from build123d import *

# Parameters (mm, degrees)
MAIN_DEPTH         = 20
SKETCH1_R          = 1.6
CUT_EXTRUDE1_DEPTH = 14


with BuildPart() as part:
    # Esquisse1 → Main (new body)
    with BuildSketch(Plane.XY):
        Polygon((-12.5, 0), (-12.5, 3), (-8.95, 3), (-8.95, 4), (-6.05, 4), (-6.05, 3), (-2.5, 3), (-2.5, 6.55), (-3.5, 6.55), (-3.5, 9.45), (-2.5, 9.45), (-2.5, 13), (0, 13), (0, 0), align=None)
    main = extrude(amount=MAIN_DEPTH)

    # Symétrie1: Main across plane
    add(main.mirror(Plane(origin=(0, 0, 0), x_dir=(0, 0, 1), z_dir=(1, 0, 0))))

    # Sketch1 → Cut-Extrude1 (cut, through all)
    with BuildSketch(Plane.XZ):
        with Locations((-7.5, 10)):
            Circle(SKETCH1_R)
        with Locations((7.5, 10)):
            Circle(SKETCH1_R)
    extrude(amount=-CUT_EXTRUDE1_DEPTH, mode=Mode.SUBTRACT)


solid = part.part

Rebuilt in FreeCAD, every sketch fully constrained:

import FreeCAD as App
import Part
import Sketcher
from FreeCAD import Vector


def add_polygon(sketch, points):
    """Adds a closed chain of lines whose ends are joined by coincident constraints."""
    first, n = sketch.GeometryCount, len(points)
    for a, b in zip(points, points[1:] + points[:1]):
        sketch.addGeometry(Part.LineSegment(App.Vector(*a, 0), App.Vector(*b, 0)), False)
    for i in range(n):
        sketch.addConstraint(Sketcher.Constraint("Coincident", first + i, 2, first + (i + 1) % n, 1))

doc = App.newDocument("Part")
body = doc.addObject("PartDesign::Body", "Body")

# Sketch on XY plane
sketch1 = body.newObject("Sketcher::SketchObject", "Sketch")
sketch1.AttachmentSupport = (doc.getObject("XY_Plane"), [""])
sketch1.MapMode = "FlatFace"
add_polygon(sketch1, [(-12.5, 3), (-12.5, 0), (0, 0), (0, 13), (-2.5, 13), (-2.5, 9.4), (-3.5, 9.4), (-3.5, 6.5), (-2.5, 6.5), (-2.5, 3), (-6, 3), (-6, 4), (-8.9, 4), (-8.9, 3)])  # lines 0-13
sketch1.addConstraint(Sketcher.Constraint("Vertical", 0))
sketch1.addConstraint(Sketcher.Constraint("Horizontal", 1))
sketch1.addConstraint(Sketcher.Constraint("Vertical", 2))
sketch1.addConstraint(Sketcher.Constraint("Horizontal", 3))
sketch1.addConstraint(Sketcher.Constraint("Vertical", 4))
sketch1.addConstraint(Sketcher.Constraint("Horizontal", 5))
sketch1.addConstraint(Sketcher.Constraint("Vertical", 6))
sketch1.addConstraint(Sketcher.Constraint("Horizontal", 7))
sketch1.addConstraint(Sketcher.Constraint("Vertical", 8))
sketch1.addConstraint(Sketcher.Constraint("Horizontal", 9))
sketch1.addConstraint(Sketcher.Constraint("Vertical", 10))
sketch1.addConstraint(Sketcher.Constraint("Horizontal", 11))
sketch1.addConstraint(Sketcher.Constraint("Vertical", 12))
sketch1.addConstraint(Sketcher.Constraint("Horizontal", 13))
sketch1.addConstraint(Sketcher.Constraint("Coincident", 1, 2, -1, 1))
sketch1.addConstraint(Sketcher.Constraint("Horizontal", 9, 2, 12, 2))
sketch1.addConstraint(Sketcher.Constraint("Vertical", 4, 2, 7, 2))
sketch1.addConstraint(Sketcher.Constraint("Equal", 9, 13))
sketch1.addConstraint(Sketcher.Constraint("Equal", 13, 4))
sketch1.addConstraint(Sketcher.Constraint("Equal", 11, 6))
sketch1.addConstraint(Sketcher.Constraint("Equal", 4, 8))
sketch1.addConstraint(Sketcher.Constraint("Equal", 7, 10))
sketch1.addConstraint(Sketcher.Constraint("DistanceX", 5, 2, 5, 1, 1.0))
sketch1.addConstraint(Sketcher.Constraint("DistanceY", 0, 2, 0, 1, 3.0))
sketch1.addConstraint(Sketcher.Constraint("DistanceY", 2, 1, 2, 2, 13.0))
sketch1.addConstraint(Sketcher.Constraint("DistanceX", 1, 1, 1, 2, 12.5))
sketch1.addConstraint(Sketcher.Constraint("DistanceX", 11, 2, 11, 1, 2.9))
pad1 = body.newObject("PartDesign::Pad", "Pad")
pad1.Profile = sketch1
pad1.Length = 20
doc.recompute()

mirrored = body.newObject("PartDesign::Mirrored", "Mirrored")
mirrored.Originals = [pad1]
mirrored.MirrorPlane = (doc.getObject("YZ_Plane"), [""])
body.Tip = mirrored

# Sketch on XZ plane
sketch2 = body.newObject("Sketcher::SketchObject", "Sketch001")
sketch2.AttachmentSupport = (doc.getObject("XZ_Plane"), [""])
sketch2.MapMode = "FlatFace"
sketch2.addGeometry(Part.Circle(Vector(-7.5, 10, 0), Vector(0, 0, 1), 1.6), False)
sketch2.addGeometry(Part.Circle(Vector(7.5, 10, 0), Vector(0, 0, 1), 1.6), False)
sketch2.addConstraint(Sketcher.Constraint("Equal", 0, 1))
sketch2.addConstraint(Sketcher.Constraint("Symmetric", 0, 3, 1, 3, -2))
sketch2.addConstraint(Sketcher.Constraint("Diameter", 0, 3.2))
sketch2.addConstraint(Sketcher.Constraint("DistanceY", -1, 1, 0, 3, 10.0))
sketch2.addConstraint(Sketcher.Constraint("DistanceX", 0, 3, 1, 3, 15.0))
pocket1 = body.newObject("PartDesign::Pocket", "Pocket")
pocket1.Profile = sketch2
pocket1.Type = "ThroughAll"

doc.recompute()
